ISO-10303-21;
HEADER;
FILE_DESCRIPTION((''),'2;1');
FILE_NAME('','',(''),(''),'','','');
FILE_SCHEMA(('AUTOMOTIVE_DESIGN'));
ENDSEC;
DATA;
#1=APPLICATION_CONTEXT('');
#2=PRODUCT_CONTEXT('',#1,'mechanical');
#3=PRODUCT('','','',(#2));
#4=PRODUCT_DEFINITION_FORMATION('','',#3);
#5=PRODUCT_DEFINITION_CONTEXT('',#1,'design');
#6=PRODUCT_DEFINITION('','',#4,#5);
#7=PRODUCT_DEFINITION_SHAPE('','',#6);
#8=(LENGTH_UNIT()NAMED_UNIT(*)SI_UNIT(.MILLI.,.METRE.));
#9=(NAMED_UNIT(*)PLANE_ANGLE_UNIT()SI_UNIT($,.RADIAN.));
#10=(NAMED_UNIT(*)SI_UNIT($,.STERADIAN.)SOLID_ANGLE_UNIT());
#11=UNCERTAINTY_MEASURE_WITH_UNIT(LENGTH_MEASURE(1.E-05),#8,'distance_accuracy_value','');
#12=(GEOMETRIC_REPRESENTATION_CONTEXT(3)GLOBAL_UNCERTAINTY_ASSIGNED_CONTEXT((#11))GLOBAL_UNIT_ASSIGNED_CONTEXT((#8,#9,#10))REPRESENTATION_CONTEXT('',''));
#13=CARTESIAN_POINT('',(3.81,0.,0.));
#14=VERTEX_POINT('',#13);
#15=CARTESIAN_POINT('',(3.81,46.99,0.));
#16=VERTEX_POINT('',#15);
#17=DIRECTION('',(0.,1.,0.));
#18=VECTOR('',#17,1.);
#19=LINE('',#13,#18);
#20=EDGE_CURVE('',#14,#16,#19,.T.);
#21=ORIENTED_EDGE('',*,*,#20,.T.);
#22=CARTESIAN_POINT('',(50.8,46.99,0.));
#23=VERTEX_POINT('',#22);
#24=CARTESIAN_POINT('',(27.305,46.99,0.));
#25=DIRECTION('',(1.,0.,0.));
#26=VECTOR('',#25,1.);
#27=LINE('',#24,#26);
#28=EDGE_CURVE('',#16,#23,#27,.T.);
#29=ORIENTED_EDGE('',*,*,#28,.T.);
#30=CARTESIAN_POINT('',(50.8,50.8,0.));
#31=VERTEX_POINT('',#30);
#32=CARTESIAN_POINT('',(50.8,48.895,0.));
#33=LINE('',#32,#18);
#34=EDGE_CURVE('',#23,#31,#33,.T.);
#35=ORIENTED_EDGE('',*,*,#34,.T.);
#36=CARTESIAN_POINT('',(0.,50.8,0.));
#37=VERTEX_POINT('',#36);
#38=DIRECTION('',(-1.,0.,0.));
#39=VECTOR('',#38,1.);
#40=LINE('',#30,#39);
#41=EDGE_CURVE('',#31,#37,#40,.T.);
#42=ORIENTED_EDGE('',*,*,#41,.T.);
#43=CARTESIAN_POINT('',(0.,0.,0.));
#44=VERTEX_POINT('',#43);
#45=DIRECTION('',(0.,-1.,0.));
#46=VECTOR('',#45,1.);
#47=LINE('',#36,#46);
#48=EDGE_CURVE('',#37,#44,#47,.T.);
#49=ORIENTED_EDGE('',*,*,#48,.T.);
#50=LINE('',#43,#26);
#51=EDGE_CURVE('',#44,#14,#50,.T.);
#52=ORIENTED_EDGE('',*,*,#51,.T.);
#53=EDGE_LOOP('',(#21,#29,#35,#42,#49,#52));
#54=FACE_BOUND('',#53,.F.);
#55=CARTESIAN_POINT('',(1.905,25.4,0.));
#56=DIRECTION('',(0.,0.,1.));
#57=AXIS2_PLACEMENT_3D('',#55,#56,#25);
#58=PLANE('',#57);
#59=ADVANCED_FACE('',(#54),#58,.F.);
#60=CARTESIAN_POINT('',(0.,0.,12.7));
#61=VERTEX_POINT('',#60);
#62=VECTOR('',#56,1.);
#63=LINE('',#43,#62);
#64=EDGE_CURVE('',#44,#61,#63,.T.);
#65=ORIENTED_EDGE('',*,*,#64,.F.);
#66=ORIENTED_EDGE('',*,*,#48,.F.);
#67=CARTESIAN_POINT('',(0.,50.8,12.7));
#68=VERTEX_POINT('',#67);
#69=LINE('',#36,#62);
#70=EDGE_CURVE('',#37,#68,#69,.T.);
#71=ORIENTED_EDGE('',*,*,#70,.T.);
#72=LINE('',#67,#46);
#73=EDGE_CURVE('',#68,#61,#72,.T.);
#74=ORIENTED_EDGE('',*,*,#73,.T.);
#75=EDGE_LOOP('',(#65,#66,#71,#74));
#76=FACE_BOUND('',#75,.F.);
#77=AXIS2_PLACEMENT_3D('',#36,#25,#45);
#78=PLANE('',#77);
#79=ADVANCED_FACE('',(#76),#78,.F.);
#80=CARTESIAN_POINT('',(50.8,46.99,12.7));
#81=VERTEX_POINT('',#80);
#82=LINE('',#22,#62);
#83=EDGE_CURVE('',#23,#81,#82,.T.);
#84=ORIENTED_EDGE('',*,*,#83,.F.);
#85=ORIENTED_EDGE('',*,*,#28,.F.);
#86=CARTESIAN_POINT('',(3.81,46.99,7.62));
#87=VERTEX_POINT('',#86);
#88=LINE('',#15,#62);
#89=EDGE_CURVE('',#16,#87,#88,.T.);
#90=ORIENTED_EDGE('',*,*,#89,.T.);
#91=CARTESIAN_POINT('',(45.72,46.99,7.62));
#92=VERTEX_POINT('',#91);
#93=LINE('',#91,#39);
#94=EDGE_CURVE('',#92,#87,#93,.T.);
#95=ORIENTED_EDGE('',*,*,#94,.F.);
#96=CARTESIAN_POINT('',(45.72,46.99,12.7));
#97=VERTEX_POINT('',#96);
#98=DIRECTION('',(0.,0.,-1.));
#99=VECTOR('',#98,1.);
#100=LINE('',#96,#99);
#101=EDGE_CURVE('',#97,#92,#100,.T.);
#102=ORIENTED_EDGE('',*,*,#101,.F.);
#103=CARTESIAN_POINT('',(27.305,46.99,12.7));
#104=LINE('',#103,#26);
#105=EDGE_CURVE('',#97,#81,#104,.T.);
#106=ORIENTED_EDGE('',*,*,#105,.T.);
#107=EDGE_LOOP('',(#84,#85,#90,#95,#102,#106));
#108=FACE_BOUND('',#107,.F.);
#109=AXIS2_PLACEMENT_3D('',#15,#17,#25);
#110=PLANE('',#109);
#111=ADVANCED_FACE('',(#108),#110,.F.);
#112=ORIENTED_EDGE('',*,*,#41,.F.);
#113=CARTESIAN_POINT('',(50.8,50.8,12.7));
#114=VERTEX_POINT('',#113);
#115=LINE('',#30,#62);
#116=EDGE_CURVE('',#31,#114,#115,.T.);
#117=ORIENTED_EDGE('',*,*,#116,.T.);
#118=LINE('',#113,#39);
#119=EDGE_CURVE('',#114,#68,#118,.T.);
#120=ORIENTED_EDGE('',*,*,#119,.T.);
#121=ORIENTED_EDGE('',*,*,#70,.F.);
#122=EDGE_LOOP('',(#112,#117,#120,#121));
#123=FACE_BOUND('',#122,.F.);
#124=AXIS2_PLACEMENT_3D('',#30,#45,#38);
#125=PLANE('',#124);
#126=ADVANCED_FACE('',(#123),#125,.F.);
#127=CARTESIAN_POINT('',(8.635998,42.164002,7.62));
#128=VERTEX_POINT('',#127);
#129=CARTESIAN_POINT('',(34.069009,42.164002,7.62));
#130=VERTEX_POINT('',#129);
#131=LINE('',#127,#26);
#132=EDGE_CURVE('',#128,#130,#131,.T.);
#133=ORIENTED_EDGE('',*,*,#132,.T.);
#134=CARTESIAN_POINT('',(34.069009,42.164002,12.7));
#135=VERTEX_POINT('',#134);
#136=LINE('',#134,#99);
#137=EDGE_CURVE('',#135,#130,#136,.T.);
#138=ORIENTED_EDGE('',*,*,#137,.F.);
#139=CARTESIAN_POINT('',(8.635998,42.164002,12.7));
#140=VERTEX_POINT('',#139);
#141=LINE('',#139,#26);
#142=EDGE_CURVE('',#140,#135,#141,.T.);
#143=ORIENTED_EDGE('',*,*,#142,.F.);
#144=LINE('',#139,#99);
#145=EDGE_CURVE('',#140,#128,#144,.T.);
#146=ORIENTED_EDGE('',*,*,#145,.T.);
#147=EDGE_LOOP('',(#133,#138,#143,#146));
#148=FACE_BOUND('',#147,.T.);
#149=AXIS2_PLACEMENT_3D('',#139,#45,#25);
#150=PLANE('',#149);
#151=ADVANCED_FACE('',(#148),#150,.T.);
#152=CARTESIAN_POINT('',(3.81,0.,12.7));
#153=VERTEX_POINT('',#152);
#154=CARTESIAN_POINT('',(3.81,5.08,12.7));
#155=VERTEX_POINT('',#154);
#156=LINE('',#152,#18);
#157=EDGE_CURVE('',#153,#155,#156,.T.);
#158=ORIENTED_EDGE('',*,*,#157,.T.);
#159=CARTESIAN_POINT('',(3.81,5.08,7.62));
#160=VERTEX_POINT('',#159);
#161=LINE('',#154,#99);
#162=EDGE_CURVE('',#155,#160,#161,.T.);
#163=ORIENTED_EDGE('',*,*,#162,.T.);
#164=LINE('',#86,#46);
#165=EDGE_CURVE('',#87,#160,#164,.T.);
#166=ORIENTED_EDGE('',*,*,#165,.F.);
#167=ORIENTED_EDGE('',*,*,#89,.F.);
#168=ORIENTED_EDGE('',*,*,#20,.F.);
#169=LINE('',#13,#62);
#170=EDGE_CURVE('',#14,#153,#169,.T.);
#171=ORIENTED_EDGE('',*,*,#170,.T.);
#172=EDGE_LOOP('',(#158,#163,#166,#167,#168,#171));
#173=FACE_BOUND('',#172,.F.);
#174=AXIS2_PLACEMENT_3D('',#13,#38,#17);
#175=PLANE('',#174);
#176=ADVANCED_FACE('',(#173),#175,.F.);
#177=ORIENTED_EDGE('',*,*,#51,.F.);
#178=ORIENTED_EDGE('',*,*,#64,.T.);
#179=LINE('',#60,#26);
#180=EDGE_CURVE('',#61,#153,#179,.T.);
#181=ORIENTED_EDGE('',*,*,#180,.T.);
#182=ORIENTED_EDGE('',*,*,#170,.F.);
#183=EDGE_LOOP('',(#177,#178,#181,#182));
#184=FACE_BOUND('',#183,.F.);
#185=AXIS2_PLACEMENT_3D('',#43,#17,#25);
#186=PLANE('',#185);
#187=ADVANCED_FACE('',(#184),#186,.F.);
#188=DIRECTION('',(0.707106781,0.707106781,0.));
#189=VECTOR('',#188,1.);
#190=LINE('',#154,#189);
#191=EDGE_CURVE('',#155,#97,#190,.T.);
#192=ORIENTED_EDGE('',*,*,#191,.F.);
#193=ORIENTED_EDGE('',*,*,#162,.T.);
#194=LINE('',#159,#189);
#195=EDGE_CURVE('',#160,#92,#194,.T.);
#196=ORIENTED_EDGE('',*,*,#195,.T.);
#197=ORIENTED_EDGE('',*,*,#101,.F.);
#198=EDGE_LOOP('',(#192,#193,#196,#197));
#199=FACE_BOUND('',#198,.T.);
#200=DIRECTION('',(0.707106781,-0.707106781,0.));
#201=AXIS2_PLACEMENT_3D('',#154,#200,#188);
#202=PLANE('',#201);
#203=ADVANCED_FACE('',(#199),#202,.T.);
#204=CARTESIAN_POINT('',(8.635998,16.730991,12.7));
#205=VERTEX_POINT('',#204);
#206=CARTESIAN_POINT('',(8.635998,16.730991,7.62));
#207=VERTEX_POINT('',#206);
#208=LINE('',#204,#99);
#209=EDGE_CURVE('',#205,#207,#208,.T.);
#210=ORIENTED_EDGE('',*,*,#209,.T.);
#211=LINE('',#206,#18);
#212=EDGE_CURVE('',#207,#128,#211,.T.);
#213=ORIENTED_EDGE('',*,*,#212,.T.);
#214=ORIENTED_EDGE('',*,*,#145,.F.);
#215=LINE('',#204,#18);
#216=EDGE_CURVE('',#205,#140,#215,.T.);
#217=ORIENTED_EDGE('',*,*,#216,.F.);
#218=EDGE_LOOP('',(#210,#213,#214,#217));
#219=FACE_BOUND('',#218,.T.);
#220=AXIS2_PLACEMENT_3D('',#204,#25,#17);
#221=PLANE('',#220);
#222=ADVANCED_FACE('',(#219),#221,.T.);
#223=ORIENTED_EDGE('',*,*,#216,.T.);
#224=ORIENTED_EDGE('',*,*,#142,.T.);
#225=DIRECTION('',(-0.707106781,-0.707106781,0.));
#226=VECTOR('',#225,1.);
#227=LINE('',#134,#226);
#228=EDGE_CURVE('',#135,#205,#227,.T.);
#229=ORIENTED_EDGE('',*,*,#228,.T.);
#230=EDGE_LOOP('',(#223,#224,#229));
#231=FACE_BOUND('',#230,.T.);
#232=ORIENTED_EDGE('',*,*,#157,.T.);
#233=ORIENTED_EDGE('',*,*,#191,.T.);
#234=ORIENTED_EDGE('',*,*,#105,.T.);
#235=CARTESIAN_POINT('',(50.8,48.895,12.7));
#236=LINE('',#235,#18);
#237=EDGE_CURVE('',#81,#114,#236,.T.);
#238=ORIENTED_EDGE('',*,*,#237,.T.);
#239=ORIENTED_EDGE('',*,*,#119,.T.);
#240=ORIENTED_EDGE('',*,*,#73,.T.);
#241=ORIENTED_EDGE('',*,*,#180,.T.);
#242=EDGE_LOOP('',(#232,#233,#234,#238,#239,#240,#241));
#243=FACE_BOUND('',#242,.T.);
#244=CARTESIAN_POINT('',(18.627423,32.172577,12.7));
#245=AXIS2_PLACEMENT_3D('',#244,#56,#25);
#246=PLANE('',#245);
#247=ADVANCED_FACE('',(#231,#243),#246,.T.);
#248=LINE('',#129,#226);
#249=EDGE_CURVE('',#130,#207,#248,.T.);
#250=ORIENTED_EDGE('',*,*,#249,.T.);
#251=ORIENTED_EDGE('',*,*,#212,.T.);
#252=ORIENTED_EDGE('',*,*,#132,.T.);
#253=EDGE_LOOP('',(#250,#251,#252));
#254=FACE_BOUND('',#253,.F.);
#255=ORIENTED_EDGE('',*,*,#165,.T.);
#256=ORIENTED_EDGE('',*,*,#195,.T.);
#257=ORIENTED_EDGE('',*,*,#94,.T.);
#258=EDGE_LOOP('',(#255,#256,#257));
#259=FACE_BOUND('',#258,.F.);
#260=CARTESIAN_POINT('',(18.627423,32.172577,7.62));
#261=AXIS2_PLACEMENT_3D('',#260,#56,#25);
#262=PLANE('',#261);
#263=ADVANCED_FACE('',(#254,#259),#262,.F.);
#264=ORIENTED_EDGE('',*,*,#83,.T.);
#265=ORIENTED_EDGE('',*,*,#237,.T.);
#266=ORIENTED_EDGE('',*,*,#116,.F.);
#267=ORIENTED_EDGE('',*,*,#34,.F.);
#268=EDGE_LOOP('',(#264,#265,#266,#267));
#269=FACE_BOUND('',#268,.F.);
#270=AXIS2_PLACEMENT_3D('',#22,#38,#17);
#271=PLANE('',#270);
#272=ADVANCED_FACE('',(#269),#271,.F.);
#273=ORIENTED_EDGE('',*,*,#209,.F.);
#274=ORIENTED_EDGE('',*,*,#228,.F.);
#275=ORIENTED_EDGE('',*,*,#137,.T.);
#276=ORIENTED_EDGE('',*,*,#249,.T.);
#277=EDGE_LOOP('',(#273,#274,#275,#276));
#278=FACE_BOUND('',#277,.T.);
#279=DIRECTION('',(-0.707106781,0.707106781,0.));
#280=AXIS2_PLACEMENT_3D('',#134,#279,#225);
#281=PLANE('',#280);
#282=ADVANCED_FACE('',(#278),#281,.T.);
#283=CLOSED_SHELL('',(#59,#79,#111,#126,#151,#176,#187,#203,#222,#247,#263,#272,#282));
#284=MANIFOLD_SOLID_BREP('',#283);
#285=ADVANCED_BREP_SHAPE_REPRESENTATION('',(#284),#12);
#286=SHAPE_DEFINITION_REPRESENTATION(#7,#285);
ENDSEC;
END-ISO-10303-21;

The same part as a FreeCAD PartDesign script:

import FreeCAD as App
import Part
import Sketcher

V = App.Vector
Q = App.Units.Quantity


def add_polygon(sketch, points):
    """Adds a closed chain of lines whose ends are joined by coincident constraints."""
    first, n = sketch.GeometryCount, len(points)
    for a, b in zip(points, points[1:] + points[:1]):
        sketch.addGeometry(Part.LineSegment(App.Vector(*a, 0), App.Vector(*b, 0)), False)
    for i in range(n):
        sketch.addConstraint(Sketcher.Constraint("Coincident", first + i, 2, first + (i + 1) % n, 1))

doc = App.newDocument("Part")
body = doc.addObject("PartDesign::Body", "Body")

# Sketch on XY plane
sketch1 = body.newObject("Sketcher::SketchObject", "Sketch")
sketch1.AttachmentSupport = (doc.getObject("XY_Plane"), [""])
sketch1.MapMode = "FlatFace"
add_polygon(sketch1, [(0, 50.8), (0, 0), (3.8, 0), (3.8, 47), (50.8, 47), (50.8, 50.8)])  # lines 0-5
sketch1.addConstraint(Sketcher.Constraint("Vertical", 0))
sketch1.addConstraint(Sketcher.Constraint("Horizontal", 1))
sketch1.addConstraint(Sketcher.Constraint("Vertical", 2))
sketch1.addConstraint(Sketcher.Constraint("Horizontal", 3))
sketch1.addConstraint(Sketcher.Constraint("Vertical", 4))
sketch1.addConstraint(Sketcher.Constraint("Horizontal", 5))
sketch1.addConstraint(Sketcher.Constraint("Coincident", 0, 2, -1, 1))
sketch1.addConstraint(Sketcher.Constraint("Equal", 5, 0))
sketch1.addConstraint(Sketcher.Constraint("Equal", 3, 2))
sketch1.addConstraint(Sketcher.Constraint("DistanceX", 5, 2, 5, 1, Q("2 in")))
sketch1.addConstraint(Sketcher.Constraint("DistanceX", 1, 1, 1, 2, Q("0.15 in")))
pad1 = body.newObject("PartDesign::Pad", "Pad")
pad1.Profile = sketch1
pad1.Length = Q("0.5 in")

# Sketch on XY plane
sketch2 = body.newObject("Sketcher::SketchObject", "Sketch001")
sketch2.AttachmentSupport = (doc.getObject("XY_Plane"), [""])
sketch2.MapMode = "FlatFace"
sketch2.AttachmentOffset = App.Placement(V(0, 0, 0.5 * 25.4), App.Rotation())
add_polygon(sketch2, [(46, 47), (4, 47), (4, 5)])  # lines 0-2
add_polygon(sketch2, [(9, 17), (9, 42), (34, 42)])  # lines 3-5
sketch2.addConstraint(Sketcher.Constraint("Horizontal", 0))
sketch2.addConstraint(Sketcher.Constraint("Vertical", 1))
sketch2.addConstraint(Sketcher.Constraint("Vertical", 3))
sketch2.addConstraint(Sketcher.Constraint("Horizontal", 4))
sketch2.addConstraint(Sketcher.Constraint("Parallel", 2, 5))
sketch2.addConstraint(Sketcher.Constraint("Equal", 0, 1))
sketch2.addConstraint(Sketcher.Constraint("DistanceX", 0, 2, 0, 1, Q("1.65 in")))
sketch2.addConstraint(Sketcher.Constraint("DistanceY", -1, 1, 1, 2, Q("0.2 in")))
sketch2.addConstraint(Sketcher.Constraint("DistanceX", -1, 1, 2, 2, Q("1.8 in")))
sketch2.addConstraint(Sketcher.Constraint("DistanceX", -1, 1, 3, 2, Q("0.3399999 in")))
sketch2.addConstraint(Sketcher.Constraint("DistanceY", -1, 1, 3, 2, Q("1.6600001 in")))
sketch2.addConstraint(Sketcher.Constraint("DistanceX", 4, 1, 4, 2, Q("25.433011 mm")))
pad2 = body.newObject("PartDesign::Pad", "Pad001")
pad2.Profile = sketch2
pad2.Length = Q("0.2 in")
pad2.Reversed = True

doc.recompute()
